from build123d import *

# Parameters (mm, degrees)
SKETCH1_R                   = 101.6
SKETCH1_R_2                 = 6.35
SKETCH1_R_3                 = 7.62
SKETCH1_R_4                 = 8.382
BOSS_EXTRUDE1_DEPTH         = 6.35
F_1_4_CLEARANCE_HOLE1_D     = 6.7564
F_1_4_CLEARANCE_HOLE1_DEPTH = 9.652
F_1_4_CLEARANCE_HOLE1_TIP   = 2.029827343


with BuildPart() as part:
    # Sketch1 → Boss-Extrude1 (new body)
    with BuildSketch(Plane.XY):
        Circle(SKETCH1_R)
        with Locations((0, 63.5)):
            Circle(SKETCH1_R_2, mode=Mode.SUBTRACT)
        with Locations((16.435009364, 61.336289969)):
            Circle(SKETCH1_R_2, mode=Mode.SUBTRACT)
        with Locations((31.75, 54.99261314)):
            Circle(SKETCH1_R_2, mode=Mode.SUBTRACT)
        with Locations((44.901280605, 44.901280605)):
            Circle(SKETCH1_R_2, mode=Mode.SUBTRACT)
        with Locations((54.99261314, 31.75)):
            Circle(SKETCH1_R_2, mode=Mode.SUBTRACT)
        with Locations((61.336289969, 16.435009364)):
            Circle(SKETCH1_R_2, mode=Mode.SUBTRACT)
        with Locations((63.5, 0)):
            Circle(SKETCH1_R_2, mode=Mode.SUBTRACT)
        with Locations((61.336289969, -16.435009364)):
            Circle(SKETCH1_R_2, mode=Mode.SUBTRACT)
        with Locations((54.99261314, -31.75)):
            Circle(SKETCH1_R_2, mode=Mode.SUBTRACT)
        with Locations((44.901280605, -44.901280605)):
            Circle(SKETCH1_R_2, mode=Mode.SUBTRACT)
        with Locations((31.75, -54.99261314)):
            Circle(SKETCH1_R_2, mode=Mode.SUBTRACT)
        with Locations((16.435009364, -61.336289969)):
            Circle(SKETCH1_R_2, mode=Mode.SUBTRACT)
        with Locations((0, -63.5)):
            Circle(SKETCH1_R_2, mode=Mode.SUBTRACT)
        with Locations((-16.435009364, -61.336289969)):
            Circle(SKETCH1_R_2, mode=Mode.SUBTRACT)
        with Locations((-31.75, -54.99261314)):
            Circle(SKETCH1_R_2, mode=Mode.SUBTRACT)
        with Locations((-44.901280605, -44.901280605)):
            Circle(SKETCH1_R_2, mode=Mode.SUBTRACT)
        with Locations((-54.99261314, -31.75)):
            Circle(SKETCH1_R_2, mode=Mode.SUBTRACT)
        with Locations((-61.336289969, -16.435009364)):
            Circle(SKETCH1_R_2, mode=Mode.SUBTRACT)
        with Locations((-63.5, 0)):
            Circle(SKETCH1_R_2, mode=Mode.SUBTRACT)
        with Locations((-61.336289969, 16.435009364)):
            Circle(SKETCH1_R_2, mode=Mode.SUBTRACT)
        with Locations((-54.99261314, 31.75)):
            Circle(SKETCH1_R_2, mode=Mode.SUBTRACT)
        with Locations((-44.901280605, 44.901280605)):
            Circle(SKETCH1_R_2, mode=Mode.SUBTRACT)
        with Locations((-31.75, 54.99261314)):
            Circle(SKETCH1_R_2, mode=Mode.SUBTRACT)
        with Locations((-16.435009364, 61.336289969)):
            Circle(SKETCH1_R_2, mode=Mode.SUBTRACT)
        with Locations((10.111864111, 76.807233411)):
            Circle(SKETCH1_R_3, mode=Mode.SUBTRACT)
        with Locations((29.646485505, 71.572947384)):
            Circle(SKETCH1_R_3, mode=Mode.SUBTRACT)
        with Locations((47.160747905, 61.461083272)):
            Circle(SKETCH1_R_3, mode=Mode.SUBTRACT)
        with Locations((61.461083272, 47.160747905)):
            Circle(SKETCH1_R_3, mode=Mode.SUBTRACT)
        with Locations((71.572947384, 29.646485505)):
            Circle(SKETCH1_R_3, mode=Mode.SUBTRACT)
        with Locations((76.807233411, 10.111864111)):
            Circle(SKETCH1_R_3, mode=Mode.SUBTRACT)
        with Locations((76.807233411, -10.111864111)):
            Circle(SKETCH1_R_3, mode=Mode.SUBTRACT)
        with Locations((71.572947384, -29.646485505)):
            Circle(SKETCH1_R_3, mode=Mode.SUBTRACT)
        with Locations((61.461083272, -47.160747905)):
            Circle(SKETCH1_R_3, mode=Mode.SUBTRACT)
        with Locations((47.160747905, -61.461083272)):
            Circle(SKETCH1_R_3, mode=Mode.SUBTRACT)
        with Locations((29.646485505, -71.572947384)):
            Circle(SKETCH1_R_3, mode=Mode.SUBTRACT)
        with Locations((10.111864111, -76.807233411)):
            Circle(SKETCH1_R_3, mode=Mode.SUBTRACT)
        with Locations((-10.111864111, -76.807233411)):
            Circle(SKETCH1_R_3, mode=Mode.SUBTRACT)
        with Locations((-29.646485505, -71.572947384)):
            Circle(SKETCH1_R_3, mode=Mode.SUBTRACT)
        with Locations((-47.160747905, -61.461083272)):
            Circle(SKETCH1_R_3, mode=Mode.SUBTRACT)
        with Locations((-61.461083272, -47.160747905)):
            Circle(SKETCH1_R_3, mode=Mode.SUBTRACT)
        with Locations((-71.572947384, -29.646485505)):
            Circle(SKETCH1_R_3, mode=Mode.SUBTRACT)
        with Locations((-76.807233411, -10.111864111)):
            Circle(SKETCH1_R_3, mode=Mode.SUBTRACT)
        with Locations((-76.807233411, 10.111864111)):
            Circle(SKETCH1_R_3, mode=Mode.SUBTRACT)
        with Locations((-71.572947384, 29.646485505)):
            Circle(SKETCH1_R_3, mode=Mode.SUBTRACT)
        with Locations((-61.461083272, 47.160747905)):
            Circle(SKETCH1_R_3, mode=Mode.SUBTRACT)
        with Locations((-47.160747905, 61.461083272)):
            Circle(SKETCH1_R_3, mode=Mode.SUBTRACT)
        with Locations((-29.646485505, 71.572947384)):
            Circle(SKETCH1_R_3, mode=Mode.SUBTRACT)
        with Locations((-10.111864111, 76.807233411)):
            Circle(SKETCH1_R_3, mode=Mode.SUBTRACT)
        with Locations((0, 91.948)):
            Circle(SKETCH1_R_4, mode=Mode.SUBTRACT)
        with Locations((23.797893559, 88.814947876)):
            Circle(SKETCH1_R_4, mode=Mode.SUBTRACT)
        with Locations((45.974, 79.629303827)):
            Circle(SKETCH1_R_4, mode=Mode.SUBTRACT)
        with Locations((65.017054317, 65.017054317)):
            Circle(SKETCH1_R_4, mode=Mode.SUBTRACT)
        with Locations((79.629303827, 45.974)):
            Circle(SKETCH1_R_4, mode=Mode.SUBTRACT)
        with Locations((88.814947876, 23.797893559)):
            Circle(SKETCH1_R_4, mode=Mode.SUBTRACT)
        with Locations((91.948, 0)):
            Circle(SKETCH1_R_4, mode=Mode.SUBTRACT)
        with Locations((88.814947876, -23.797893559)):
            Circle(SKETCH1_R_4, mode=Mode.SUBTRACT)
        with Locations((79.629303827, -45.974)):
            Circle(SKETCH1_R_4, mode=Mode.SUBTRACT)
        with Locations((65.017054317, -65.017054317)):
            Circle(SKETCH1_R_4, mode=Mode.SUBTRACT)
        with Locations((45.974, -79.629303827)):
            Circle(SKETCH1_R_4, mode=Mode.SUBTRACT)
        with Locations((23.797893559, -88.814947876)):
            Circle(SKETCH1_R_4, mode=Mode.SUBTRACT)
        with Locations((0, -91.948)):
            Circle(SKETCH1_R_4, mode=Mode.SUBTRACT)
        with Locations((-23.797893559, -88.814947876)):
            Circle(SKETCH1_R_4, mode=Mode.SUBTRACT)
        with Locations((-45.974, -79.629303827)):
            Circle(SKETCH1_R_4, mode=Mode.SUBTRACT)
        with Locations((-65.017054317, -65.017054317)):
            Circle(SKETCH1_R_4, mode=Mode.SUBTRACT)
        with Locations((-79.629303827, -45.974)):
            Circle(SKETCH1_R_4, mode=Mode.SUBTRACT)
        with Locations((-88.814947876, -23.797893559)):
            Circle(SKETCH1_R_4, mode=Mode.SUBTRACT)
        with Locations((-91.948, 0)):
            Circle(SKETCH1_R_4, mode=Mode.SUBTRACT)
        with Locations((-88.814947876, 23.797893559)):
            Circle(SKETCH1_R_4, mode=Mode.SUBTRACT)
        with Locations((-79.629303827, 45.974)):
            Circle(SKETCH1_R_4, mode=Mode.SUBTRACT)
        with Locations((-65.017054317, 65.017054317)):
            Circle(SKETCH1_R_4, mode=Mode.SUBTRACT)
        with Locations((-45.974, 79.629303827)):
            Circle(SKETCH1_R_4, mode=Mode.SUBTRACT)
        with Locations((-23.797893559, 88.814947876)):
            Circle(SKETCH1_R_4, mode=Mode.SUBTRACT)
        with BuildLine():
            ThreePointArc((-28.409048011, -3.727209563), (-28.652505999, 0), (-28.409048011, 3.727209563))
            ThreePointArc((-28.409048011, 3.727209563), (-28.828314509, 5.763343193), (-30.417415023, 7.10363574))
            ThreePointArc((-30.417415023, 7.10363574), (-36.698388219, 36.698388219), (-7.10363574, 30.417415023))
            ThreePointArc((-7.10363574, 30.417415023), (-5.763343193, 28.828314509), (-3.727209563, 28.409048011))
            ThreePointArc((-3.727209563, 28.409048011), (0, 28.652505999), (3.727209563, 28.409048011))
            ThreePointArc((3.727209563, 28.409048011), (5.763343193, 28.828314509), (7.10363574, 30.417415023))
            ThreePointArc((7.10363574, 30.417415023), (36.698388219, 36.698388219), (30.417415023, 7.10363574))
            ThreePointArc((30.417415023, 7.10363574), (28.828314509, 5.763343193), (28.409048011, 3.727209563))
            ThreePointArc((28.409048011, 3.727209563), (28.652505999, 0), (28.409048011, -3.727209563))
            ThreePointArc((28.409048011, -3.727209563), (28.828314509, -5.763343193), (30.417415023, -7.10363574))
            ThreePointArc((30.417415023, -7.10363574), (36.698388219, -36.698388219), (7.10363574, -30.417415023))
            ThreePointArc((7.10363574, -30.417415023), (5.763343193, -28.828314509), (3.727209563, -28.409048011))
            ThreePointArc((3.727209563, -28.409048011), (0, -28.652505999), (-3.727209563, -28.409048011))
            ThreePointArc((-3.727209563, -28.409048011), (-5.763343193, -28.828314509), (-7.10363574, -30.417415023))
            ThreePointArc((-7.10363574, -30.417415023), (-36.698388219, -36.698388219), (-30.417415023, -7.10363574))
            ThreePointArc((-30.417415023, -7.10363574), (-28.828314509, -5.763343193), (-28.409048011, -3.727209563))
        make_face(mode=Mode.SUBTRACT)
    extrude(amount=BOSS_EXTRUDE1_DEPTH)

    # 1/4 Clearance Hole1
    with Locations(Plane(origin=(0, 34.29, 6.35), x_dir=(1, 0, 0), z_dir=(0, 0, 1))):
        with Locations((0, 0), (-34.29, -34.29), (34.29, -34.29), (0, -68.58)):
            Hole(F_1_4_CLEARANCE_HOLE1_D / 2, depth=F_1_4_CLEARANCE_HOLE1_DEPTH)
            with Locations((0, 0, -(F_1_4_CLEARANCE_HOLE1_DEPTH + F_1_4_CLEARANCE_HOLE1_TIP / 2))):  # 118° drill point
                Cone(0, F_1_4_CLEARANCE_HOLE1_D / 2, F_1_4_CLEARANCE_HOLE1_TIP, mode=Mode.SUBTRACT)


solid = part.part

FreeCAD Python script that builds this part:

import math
import FreeCAD as App
import Part
import Sketcher

V = App.Vector
Q = App.Units.Quantity

doc = App.newDocument("Part")
body = doc.addObject("PartDesign::Body", "Body")

# Sketch on XY plane
sketch1 = doc.addObject("Sketcher::SketchObject", "Sketch")
body.addObject(sketch1)
sketch1.AttachmentSupport = (doc.XY_Plane, [""])
sketch1.MapMode = "FlatFace"
sketch1.addGeometry([
    Part.Circle(V(0, 0, 0), V(0, 0, 1), 101.6),  # 0
    Part.Circle(V(-65, -65, 0), V(0, 0, 1), 8.4),  # 1
    Part.Circle(V(-46, -79.6, 0), V(0, 0, 1), 8.4),  # 2
    Part.Circle(V(-23.8, -88.8, 0), V(0, 0, 1), 8.4),  # 3
    Part.Circle(V(-10.1, -76.8, 0), V(0, 0, 1), 7.6),  # 4
    Part.Circle(V(-29.6, -71.6, 0), V(0, 0, 1), 7.6),  # 5
    Part.Circle(V(-47.2, -61.5, 0), V(0, 0, 1), 7.6),  # 6
    Part.Circle(V(-31.8, -55, 0), V(0, 0, 1), 6.3),  # 7
    Part.Circle(V(-16.4, -61.3, 0), V(0, 0, 1), 6.3),  # 8
    Part.Circle(V(-79.6, -46, 0), V(0, 0, 1), 8.4),  # 9
    Part.Circle(V(-61.5, -47.2, 0), V(0, 0, 1), 7.6),  # 10
    Part.Circle(V(-71.6, -29.6, 0), V(0, 0, 1), 7.6),  # 11
    Part.Circle(V(-55, -31.8, 0), V(0, 0, 1), 6.3),  # 12
    Part.Circle(V(-88.8, -23.8, 0), V(0, 0, 1), 8.4),  # 13
    Part.Circle(V(-76.8, -10.1, 0), V(0, 0, 1), 7.6),  # 14
    Part.Circle(V(-61.3, -16.4, 0), V(0, 0, 1), 6.3),  # 15
    Part.Circle(V(-44.9, -44.9, 0), V(0, 0, 1), 6.3),  # 16
    Part.Circle(V(0, -91.9, 0), V(0, 0, 1), 8.4),  # 17
    Part.Circle(V(23.8, -88.8, 0), V(0, 0, 1), 8.4),  # 18
    Part.Circle(V(10.1, -76.8, 0), V(0, 0, 1), 7.6),  # 19
    Part.Circle(V(46, -79.6, 0), V(0, 0, 1), 8.4),  # 20
    Part.Circle(V(0, -63.5, 0), V(0, 0, 1), 6.3),  # 21
    Part.Circle(V(16.4, -61.3, 0), V(0, 0, 1), 6.3),  # 22
    Part.Circle(V(29.6, -71.6, 0), V(0, 0, 1), 7.6),  # 23
    Part.Circle(V(31.8, -55, 0), V(0, 0, 1), 6.3),  # 24
    Part.Circle(V(47.2, -61.5, 0), V(0, 0, 1), 7.6),  # 25
    Part.Circle(V(65, -65, 0), V(0, 0, 1), 8.4),  # 26
    Part.Circle(V(44.9, -44.9, 0), V(0, 0, 1), 6.3),  # 27
    Part.Circle(V(61.5, -47.2, 0), V(0, 0, 1), 7.6),  # 28
    Part.Circle(V(55, -31.8, 0), V(0, 0, 1), 6.3),  # 29
    Part.Circle(V(71.6, -29.6, 0), V(0, 0, 1), 7.6),  # 30
    Part.Circle(V(79.6, -46, 0), V(0, 0, 1), 8.4),  # 31
    Part.Circle(V(61.3, -16.4, 0), V(0, 0, 1), 6.3),  # 32
    Part.Circle(V(88.8, -23.8, 0), V(0, 0, 1), 8.4),  # 33
    Part.Circle(V(76.8, -10.1, 0), V(0, 0, 1), 7.6),  # 34
    Part.Circle(V(-91.9, 0, 0), V(0, 0, 1), 8.4),  # 35
    Part.Circle(V(-76.8, 10.1, 0), V(0, 0, 1), 7.6),  # 36
    Part.Circle(V(-88.8, 23.8, 0), V(0, 0, 1), 8.4),  # 37
    Part.Circle(V(-63.5, 0, 0), V(0, 0, 1), 6.3),  # 38
    Part.Circle(V(-61.3, 16.4, 0), V(0, 0, 1), 6.3),  # 39
    Part.Circle(V(-79.6, 46, 0), V(0, 0, 1), 8.4),  # 40
    Part.Circle(V(-71.6, 29.6, 0), V(0, 0, 1), 7.6),  # 41
    Part.Circle(V(-55, 31.8, 0), V(0, 0, 1), 6.3),  # 42
    Part.Circle(V(-61.5, 47.2, 0), V(0, 0, 1), 7.6),  # 43
    Part.Circle(V(-44.9, 44.9, 0), V(0, 0, 1), 6.3),  # 44
    Part.Circle(V(-65, 65, 0), V(0, 0, 1), 8.4),  # 45
    Part.Circle(V(-47.2, 61.5, 0), V(0, 0, 1), 7.6),  # 46
    Part.Circle(V(-31.8, 55, 0), V(0, 0, 1), 6.3),  # 47
    Part.Circle(V(-29.6, 71.6, 0), V(0, 0, 1), 7.6),  # 48
    Part.Circle(V(-16.4, 61.3, 0), V(0, 0, 1), 6.3),  # 49
    Part.Circle(V(-46, 79.6, 0), V(0, 0, 1), 8.4),  # 50
    Part.Circle(V(-10.1, 76.8, 0), V(0, 0, 1), 7.6),  # 51
    Part.Circle(V(-23.8, 88.8, 0), V(0, 0, 1), 8.4),  # 52
    Part.ArcOfCircle(Part.Circle(V(-31.6, -4.1, 0), V(0, 0, 1), 3.2), math.radians(-69), math.radians(7)),  # 53
    Part.ArcOfCircle(Part.Circle(V(0, 0, 0), V(0, 0, 1), 28.7), math.radians(172.53), math.radians(187.47)),  # 54
    Part.ArcOfCircle(Part.Circle(V(-31.6, 4.1, 0), V(0, 0, 1), 3.2), math.radians(-7), math.radians(69)),  # 55
    Part.ArcOfCircle(Part.Circle(V(-23.9, 23.9, 0), V(0, 0, 1), 18), math.radians(21), math.radians(249)),  # 56
    Part.ArcOfCircle(Part.Circle(V(-4.1, 31.6, 0), V(0, 0, 1), 3.2), math.radians(-159), math.radians(-83)),  # 57
    Part.ArcOfCircle(Part.Circle(V(0, 0, 0), V(0, 0, 1), 28.7), math.radians(82.53), math.radians(97.47)),  # 58
    Part.ArcOfCircle(Part.Circle(V(4.1, 31.6, 0), V(0, 0, 1), 3.2), math.radians(-97), math.radians(-21)),  # 59
    Part.ArcOfCircle(Part.Circle(V(23.9, 23.9, 0), V(0, 0, 1), 18), math.radians(-69), math.radians(159)),  # 60
    Part.ArcOfCircle(Part.Circle(V(31.6, 4.1, 0), V(0, 0, 1), 3.2), math.radians(111), math.radians(187)),  # 61
    Part.ArcOfCircle(Part.Circle(V(0, 0, 0), V(0, 0, 1), 28.7), math.radians(-7.47), math.radians(7.47)),  # 62
    Part.ArcOfCircle(Part.Circle(V(31.6, -4.1, 0), V(0, 0, 1), 3.2), math.radians(173), math.radians(249)),  # 63
    Part.ArcOfCircle(Part.Circle(V(23.9, -23.9, 0), V(0, 0, 1), 18), math.radians(-159), math.radians(69)),  # 64
    Part.ArcOfCircle(Part.Circle(V(4.1, -31.6, 0), V(0, 0, 1), 3.2), math.radians(21), math.radians(97)),  # 65
    Part.ArcOfCircle(Part.Circle(V(0, 0, 0), V(0, 0, 1), 28.7), math.radians(-97.47), math.radians(-82.53)),  # 66
    Part.ArcOfCircle(Part.Circle(V(-4.1, -31.6, 0), V(0, 0, 1), 3.2), math.radians(83), math.radians(159)),  # 67
    Part.ArcOfCircle(Part.Circle(V(-23.9, -23.9, 0), V(0, 0, 1), 18), math.radians(111), math.radians(339)),  # 68
    Part.Circle(V(44.9, 44.9, 0), V(0, 0, 1), 6.3),  # 69
    Part.Circle(V(63.5, 0, 0), V(0, 0, 1), 6.3),  # 70
    Part.Circle(V(61.3, 16.4, 0), V(0, 0, 1), 6.3),  # 71
    Part.Circle(V(76.8, 10.1, 0), V(0, 0, 1), 7.6),  # 72
    Part.Circle(V(91.9, 0, 0), V(0, 0, 1), 8.4),  # 73
    Part.Circle(V(88.8, 23.8, 0), V(0, 0, 1), 8.4),  # 74
    Part.Circle(V(55, 31.8, 0), V(0, 0, 1), 6.3),  # 75
    Part.Circle(V(71.6, 29.6, 0), V(0, 0, 1), 7.6),  # 76
    Part.Circle(V(61.5, 47.2, 0), V(0, 0, 1), 7.6),  # 77
    Part.Circle(V(79.6, 46, 0), V(0, 0, 1), 8.4),  # 78
    Part.Circle(V(16.4, 61.3, 0), V(0, 0, 1), 6.3),  # 79
    Part.Circle(V(0, 63.5, 0), V(0, 0, 1), 6.3),  # 80
    Part.Circle(V(31.8, 55, 0), V(0, 0, 1), 6.3),  # 81
    Part.Circle(V(47.2, 61.5, 0), V(0, 0, 1), 7.6),  # 82
    Part.Circle(V(29.6, 71.6, 0), V(0, 0, 1), 7.6),  # 83
    Part.Circle(V(10.1, 76.8, 0), V(0, 0, 1), 7.6),  # 84
    Part.Circle(V(0, 91.9, 0), V(0, 0, 1), 8.4),  # 85
    Part.Circle(V(23.8, 88.8, 0), V(0, 0, 1), 8.4),  # 86
    Part.Circle(V(46, 79.6, 0), V(0, 0, 1), 8.4),  # 87
    Part.Circle(V(65, 65, 0), V(0, 0, 1), 8.4),  # 88
], False)
sketch1.addConstraint([
    Sketcher.Constraint("Tangent", 53, 2, 54, 2),
    Sketcher.Constraint("Tangent", 54, 1, 55, 1),
    Sketcher.Constraint("Tangent", 55, 2, 56, 2),
    Sketcher.Constraint("Tangent", 56, 1, 57, 1),
    Sketcher.Constraint("Tangent", 57, 2, 58, 2),
    Sketcher.Constraint("Tangent", 58, 1, 59, 1),
    Sketcher.Constraint("Tangent", 59, 2, 60, 2),
    Sketcher.Constraint("Tangent", 60, 1, 61, 1),
    Sketcher.Constraint("Tangent", 61, 2, 62, 2),
    Sketcher.Constraint("Tangent", 62, 1, 63, 1),
    Sketcher.Constraint("Tangent", 63, 2, 64, 2),
    Sketcher.Constraint("Tangent", 64, 1, 65, 1),
    Sketcher.Constraint("Tangent", 65, 2, 66, 2),
    Sketcher.Constraint("Tangent", 66, 1, 67, 1),
    Sketcher.Constraint("Tangent", 67, 2, 68, 2),
    Sketcher.Constraint("Tangent", 68, 1, 53, 1),
    Sketcher.Constraint("Coincident", 0, 3, -1, 1),
    Sketcher.Constraint("Coincident", 54, 3, -1, 1),
    Sketcher.Constraint("Coincident", 58, 3, -1, 1),
    Sketcher.Constraint("Coincident", 62, 3, -1, 1),
    Sketcher.Constraint("Coincident", 66, 3, -1, 1),
    Sketcher.Constraint("Equal", 1, 2),
    Sketcher.Constraint("Equal", 2, 3),
    Sketcher.Constraint("Equal", 4, 5),
    Sketcher.Constraint("Equal", 5, 6),
    Sketcher.Constraint("Equal", 7, 8),
    Sketcher.Constraint("Equal", 3, 9),
    Sketcher.Constraint("Equal", 6, 10),
    Sketcher.Constraint("Equal", 10, 11),
    Sketcher.Constraint("Equal", 8, 12),
    Sketcher.Constraint("Equal", 9, 13),
    Sketcher.Constraint("Equal", 11, 14),
    Sketcher.Constraint("Equal", 12, 15),
    Sketcher.Constraint("Equal", 15, 16),
    Sketcher.Constraint("Equal", 13, 17),
    Sketcher.Constraint("Equal", 17, 18),
    Sketcher.Constraint("Equal", 14, 19),
    Sketcher.Constraint("Equal", 18, 20),
    Sketcher.Constraint("Equal", 16, 21),
    Sketcher.Constraint("Equal", 21, 22),
    Sketcher.Constraint("Equal", 19, 23),
    Sketcher.Constraint("Equal", 22, 24),
    Sketcher.Constraint("Equal", 23, 25),
    Sketcher.Constraint("Equal", 20, 26),
    Sketcher.Constraint("Equal", 24, 27),
    Sketcher.Constraint("Equal", 25, 28),
    Sketcher.Constraint("Equal", 27, 29),
    Sketcher.Constraint("Equal", 28, 30),
    Sketcher.Constraint("Equal", 26, 31),
    Sketcher.Constraint("Equal", 29, 32),
    Sketcher.Constraint("Equal", 31, 33),
    Sketcher.Constraint("Equal", 30, 34),
    Sketcher.Constraint("Equal", 33, 35),
    Sketcher.Constraint("Equal", 34, 36),
    Sketcher.Constraint("Equal", 35, 37),
    Sketcher.Constraint("Equal", 32, 38),
    Sketcher.Constraint("Equal", 38, 39),
    Sketcher.Constraint("Equal", 37, 40),
    Sketcher.Constraint("Equal", 36, 41),
    Sketcher.Constraint("Equal", 39, 42),
    Sketcher.Constraint("Equal", 41, 43),
    Sketcher.Constraint("Equal", 42, 44),
    Sketcher.Constraint("Equal", 40, 45),
    Sketcher.Constraint("Equal", 43, 46),
    Sketcher.Constraint("Equal", 44, 47),
    Sketcher.Constraint("Equal", 46, 48),
    Sketcher.Constraint("Equal", 47, 49),
    Sketcher.Constraint("Equal", 45, 50),
    Sketcher.Constraint("Equal", 48, 51),
    Sketcher.Constraint("Equal", 50, 52),
    Sketcher.Constraint("Equal", 53, 55),
    Sketcher.Constraint("Equal", 55, 57),
    Sketcher.Constraint("Equal", 54, 58),
    Sketcher.Constraint("Equal", 57, 59),
    Sketcher.Constraint("Equal", 56, 60),
    Sketcher.Constraint("Equal", 59, 61),
    Sketcher.Constraint("Equal", 58, 62),
    Sketcher.Constraint("Equal", 61, 63),
    Sketcher.Constraint("Equal", 60, 64),
    Sketcher.Constraint("Equal", 63, 65),
    Sketcher.Constraint("Equal", 62, 66),
    Sketcher.Constraint("Equal", 65, 67),
    Sketcher.Constraint("Equal", 64, 68),
    Sketcher.Constraint("Equal", 49, 69),
    Sketcher.Constraint("Equal", 69, 70),
    Sketcher.Constraint("Equal", 70, 71),
    Sketcher.Constraint("Equal", 51, 72),
    Sketcher.Constraint("Equal", 52, 73),
    Sketcher.Constraint("Equal", 73, 74),
    Sketcher.Constraint("Equal", 71, 75),
    Sketcher.Constraint("Equal", 72, 76),
    Sketcher.Constraint("Equal", 76, 77),
    Sketcher.Constraint("Equal", 74, 78),
    Sketcher.Constraint("Equal", 75, 79),
    Sketcher.Constraint("Equal", 79, 80),
    Sketcher.Constraint("Equal", 80, 81),
    Sketcher.Constraint("Equal", 77, 82),
    Sketcher.Constraint("Equal", 82, 83),
    Sketcher.Constraint("Equal", 83, 84),
    Sketcher.Constraint("Equal", 78, 85),
    Sketcher.Constraint("Equal", 85, 86),
    Sketcher.Constraint("Equal", 86, 87),
    Sketcher.Constraint("Equal", 87, 88),
    Sketcher.Constraint("Symmetric", 34, 3, 36, 3, -1, 1),
    Sketcher.Constraint("Symmetric", 33, 3, 37, 3, -1, 1),
    Sketcher.Constraint("Symmetric", 32, 3, 39, 3, -1, 1),
    Sketcher.Constraint("Symmetric", 31, 3, 40, 3, -1, 1),
    Sketcher.Constraint("Symmetric", 30, 3, 41, 3, -1, 1),
    Sketcher.Constraint("Symmetric", 29, 3, 42, 3, -1, 1),
    Sketcher.Constraint("Symmetric", 28, 3, 43, 3, -1, 1),
    Sketcher.Constraint("Symmetric", 27, 3, 44, 3, -1, 1),
    Sketcher.Constraint("Symmetric", 26, 3, 45, 3, -1, 1),
    Sketcher.Constraint("Symmetric", 25, 3, 46, 3, -1, 1),
    Sketcher.Constraint("Symmetric", 24, 3, 47, 3, -1, 1),
    Sketcher.Constraint("Symmetric", 23, 3, 48, 3, -1, 1),
    Sketcher.Constraint("Symmetric", 22, 3, 49, 3, -1, 1),
    Sketcher.Constraint("Symmetric", 20, 3, 50, 3, -1, 1),
    Sketcher.Constraint("Symmetric", 19, 3, 51, 3, -1, 1),
    Sketcher.Constraint("Symmetric", 18, 3, 52, 3, -1, 1),
    Sketcher.Constraint("Symmetric", 56, 3, 64, 3, -1, 1),
    Sketcher.Constraint("Symmetric", 60, 3, 68, 3, -1, 1),
    Sketcher.Constraint("Symmetric", 16, 3, 69, 3, -1, 1),
    Sketcher.Constraint("Symmetric", 38, 3, 70, 3, -1, 1),
    Sketcher.Constraint("Symmetric", 15, 3, 71, 3, -1, 1),
    Sketcher.Constraint("Symmetric", 14, 3, 72, 3, -1, 1),
    Sketcher.Constraint("Symmetric", 35, 3, 73, 3, -1, 1),
    Sketcher.Constraint("Symmetric", 13, 3, 74, 3, -1, 1),
    Sketcher.Constraint("Symmetric", 12, 3, 75, 3, -1, 1),
    Sketcher.Constraint("Symmetric", 11, 3, 76, 3, -1, 1),
    Sketcher.Constraint("Symmetric", 10, 3, 77, 3, -1, 1),
    Sketcher.Constraint("Symmetric", 9, 3, 78, 3, -1, 1),
    Sketcher.Constraint("Symmetric", 8, 3, 79, 3, -1, 1),
    Sketcher.Constraint("Symmetric", 21, 3, 80, 3, -1, 1),
    Sketcher.Constraint("Symmetric", 7, 3, 81, 3, -1, 1),
    Sketcher.Constraint("Symmetric", 6, 3, 82, 3, -1, 1),
    Sketcher.Constraint("Symmetric", 5, 3, 83, 3, -1, 1),
    Sketcher.Constraint("Symmetric", 4, 3, 84, 3, -1, 1),
    Sketcher.Constraint("Symmetric", 17, 3, 85, 3, -1, 1),
    Sketcher.Constraint("Symmetric", 3, 3, 86, 3, -1, 1),
    Sketcher.Constraint("Symmetric", 2, 3, 87, 3, -1, 1),
    Sketcher.Constraint("Symmetric", 1, 3, 88, 3, -1, 1),
    Sketcher.Constraint("Symmetric", 3, 3, 18, 3, -2),
    Sketcher.Constraint("Symmetric", 4, 3, 19, 3, -2),
    Sketcher.Constraint("Symmetric", 2, 3, 20, 3, -2),
    Sketcher.Constraint("Symmetric", 8, 3, 22, 3, -2),
    Sketcher.Constraint("Symmetric", 5, 3, 23, 3, -2),
    Sketcher.Constraint("Symmetric", 7, 3, 24, 3, -2),
    Sketcher.Constraint("Symmetric", 6, 3, 25, 3, -2),
    Sketcher.Constraint("Symmetric", 1, 3, 26, 3, -2),
    Sketcher.Constraint("Symmetric", 16, 3, 27, 3, -2),
    Sketcher.Constraint("Symmetric", 10, 3, 28, 3, -2),
    Sketcher.Constraint("Symmetric", 12, 3, 29, 3, -2),
    Sketcher.Constraint("Symmetric", 11, 3, 30, 3, -2),
    Sketcher.Constraint("Symmetric", 9, 3, 31, 3, -2),
    Sketcher.Constraint("Symmetric", 15, 3, 32, 3, -2),
    Sketcher.Constraint("Symmetric", 13, 3, 33, 3, -2),
    Sketcher.Constraint("Symmetric", 14, 3, 34, 3, -2),
    Sketcher.Constraint("Symmetric", 56, 3, 60, 3, -2),
    Sketcher.Constraint("PointOnObject", 17, 3, -2),
    Sketcher.Constraint("PointOnObject", 21, 3, -2),
    Sketcher.Constraint("PointOnObject", 35, 3, -1),
    Sketcher.Constraint("PointOnObject", 38, 3, -1),
    Sketcher.Constraint("Diameter", 0, Q("8 in")),
    Sketcher.Constraint("Diameter", 4, Q("0.6 in")),
    Sketcher.Constraint("Diameter", 7, Q("0.5 in")),
    Sketcher.Constraint("Diameter", 1, Q("0.66 in")),
    Sketcher.Constraint("Radius", 53, Q("0.125 in")),
    Sketcher.Constraint("DistanceY", 21, 3, -1, 1, Q("2.5 in")),
    Sketcher.Constraint("DistanceX", 38, 3, -1, 1, Q("2.5 in")),
    Sketcher.Constraint("DistanceX", 2, 3, -1, 1, Q("1.81 in")),
    Sketcher.Constraint("DistanceX", 7, 3, -1, 1, Q("1.25 in")),
    Sketcher.Constraint("DistanceY", 9, 3, -1, 1, Q("1.81 in")),
    Sketcher.Constraint("DistanceY", 12, 3, -1, 1, Q("1.25 in")),
    Sketcher.Constraint("DistanceY", 17, 3, -1, 1, Q("3.62 in")),
    Sketcher.Constraint("DistanceX", 35, 3, -1, 1, Q("3.62 in")),
    Sketcher.Constraint("Radius", 54, 28.652506),
    Sketcher.Constraint("Radius", 56, 18.040467),
    Sketcher.Constraint("DistanceX", 8, 3, -1, 1, 16.435009),
    Sketcher.Constraint("DistanceY", 8, 3, -1, 1, 61.33629),
    Sketcher.Constraint("DistanceX", 15, 3, -1, 1, 61.33629),
    Sketcher.Constraint("DistanceY", 15, 3, -1, 1, 16.435009),
    Sketcher.Constraint("DistanceX", 16, 3, -1, 1, 44.901281),
    Sketcher.Constraint("DistanceY", 16, 3, -1, 1, 44.901281),
    Sketcher.Constraint("DistanceX", 53, 3, -1, 1, 31.55707),
    Sketcher.Constraint("DistanceX", 56, 3, -1, 1, 23.941852),
    Sketcher.Constraint("DistanceX", 1, 3, -1, 1, 65.017054),
    Sketcher.Constraint("DistanceY", 1, 3, -1, 1, 65.017054),
    Sketcher.Constraint("DistanceY", 2, 3, -1, 1, 79.629304),
    Sketcher.Constraint("DistanceX", 3, 3, -1, 1, 23.797894),
    Sketcher.Constraint("DistanceY", 3, 3, -1, 1, 88.814948),
    Sketcher.Constraint("DistanceX", 4, 3, -1, 1, 10.111864),
    Sketcher.Constraint("DistanceY", 4, 3, -1, 1, 76.807233),
    Sketcher.Constraint("DistanceX", 5, 3, -1, 1, 29.646486),
    Sketcher.Constraint("DistanceY", 5, 3, -1, 1, 71.572947),
    Sketcher.Constraint("DistanceX", 6, 3, -1, 1, 47.160748),
    Sketcher.Constraint("DistanceY", 6, 3, -1, 1, 61.461083),
    Sketcher.Constraint("DistanceY", 7, 3, -1, 1, 54.992613),
    Sketcher.Constraint("DistanceX", 9, 3, -1, 1, 79.629304),
    Sketcher.Constraint("DistanceX", 10, 3, -1, 1, 61.461083),
    Sketcher.Constraint("DistanceY", 10, 3, -1, 1, 47.160748),
    Sketcher.Constraint("DistanceX", 11, 3, -1, 1, 71.572947),
    Sketcher.Constraint("DistanceY", 11, 3, -1, 1, 29.646486),
    Sketcher.Constraint("DistanceX", 12, 3, -1, 1, 54.992613),
    Sketcher.Constraint("DistanceX", 13, 3, -1, 1, 88.814948),
    Sketcher.Constraint("DistanceY", 13, 3, -1, 1, 23.797894),
    Sketcher.Constraint("DistanceX", 14, 3, -1, 1, 76.807233),
    Sketcher.Constraint("DistanceY", 14, 3, -1, 1, 10.111864),
])
pad1 = doc.addObject("PartDesign::Pad", "Pad")
body.addObject(pad1)
pad1.Profile = sketch1
pad1.Length = Q("0.25 in")

# Sketch on XY plane
sketch2 = doc.addObject("Sketcher::SketchObject", "Sketch001")
body.addObject(sketch2)
sketch2.AttachmentSupport = (doc.XY_Plane, [""])
sketch2.MapMode = "FlatFace"
sketch2.AttachmentOffset = App.Placement(V(0, 0, 0.25 * 25.4), App.Rotation())
sketch2.addGeometry([
    Part.Circle(V(0, 34.3, 0), V(0, 0, 1), 3.4),
    Part.Circle(V(-34.3, 0, 0), V(0, 0, 1), 3.4),
    Part.Circle(V(34.3, 0, 0), V(0, 0, 1), 3.4),
    Part.Circle(V(0, -34.3, 0), V(0, 0, 1), 3.4),
], False)
sketch2.addConstraint([
    Sketcher.Constraint("Equal", 0, 1),
    Sketcher.Constraint("Equal", 1, 2),
    Sketcher.Constraint("Equal", 2, 3),
    Sketcher.Constraint("Symmetric", 1, 3, 2, 3, -1, 1),
    Sketcher.Constraint("Symmetric", 0, 3, 3, 3, -1, 1),
    Sketcher.Constraint("PointOnObject", 0, 3, -2),
    Sketcher.Constraint("PointOnObject", 1, 3, -1),
    Sketcher.Constraint("Diameter", 0, Q("0.266 in")),
    Sketcher.Constraint("DistanceX", 1, 3, 2, 3, Q("2.7 in")),
    Sketcher.Constraint("DistanceY", 3, 3, 0, 3, Q("2.7 in")),
])
doc.recompute()
hole = doc.addObject("PartDesign::Hole", "Hole")
body.addObject(hole)
hole.Profile = sketch2
hole.ThreadType = "None"
hole.Diameter = Q("0.266 in")
hole.DepthType = "Dimension"
hole.Depth = Q("0.38 in")
hole.DrillPoint = "Angled"
hole.DrillPointAngle = 118

doc.recompute()
